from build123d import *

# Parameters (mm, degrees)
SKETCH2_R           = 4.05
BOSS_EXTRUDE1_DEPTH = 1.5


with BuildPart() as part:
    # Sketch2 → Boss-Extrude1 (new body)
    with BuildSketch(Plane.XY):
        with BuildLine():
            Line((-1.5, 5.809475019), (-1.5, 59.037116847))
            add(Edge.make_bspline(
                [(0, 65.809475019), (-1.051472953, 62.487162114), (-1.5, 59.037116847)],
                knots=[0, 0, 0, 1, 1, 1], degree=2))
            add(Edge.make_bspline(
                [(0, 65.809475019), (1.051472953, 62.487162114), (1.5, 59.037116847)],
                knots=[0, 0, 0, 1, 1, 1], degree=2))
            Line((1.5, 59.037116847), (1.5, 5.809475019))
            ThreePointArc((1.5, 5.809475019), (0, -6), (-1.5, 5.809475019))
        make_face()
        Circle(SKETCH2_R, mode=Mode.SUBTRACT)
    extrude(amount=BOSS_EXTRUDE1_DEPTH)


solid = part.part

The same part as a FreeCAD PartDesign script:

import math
import FreeCAD as App
import Part
import Sketcher
from FreeCAD import Vector
Q = App.Units.Quantity

doc = App.newDocument("Part")
params = doc.addObject("Spreadsheet::Sheet", "Params")
for row, (alias, value) in enumerate([
    ("sketch1_radius", "6 mm"),
    ("sketch1_diameter", "8.1 mm"),
    ("pad1_length", "1.5 mm"),
], start=1):
    params.set(f"A{row}", alias)
    params.set(f"B{row}", "=" + value)
    params.setAlias(f"B{row}", alias)

body = doc.addObject("PartDesign::Body", "Body")

# Sketch on XY plane
sketch1 = body.newObject("Sketcher::SketchObject", "Sketch")
sketch1.AttachmentSupport = (doc.getObject("XY_Plane"), [""])
sketch1.MapMode = "FlatFace"
sketch1.addGeometry(Part.LineSegment(Vector(-1.5, 59.037117, 0), Vector(-1.5, 5.809475, 0)), False)
sketch1.addGeometry(Part.ArcOfCircle(Part.Circle(Vector(0, 0, 0), Vector(0, 0, 1), 6), math.radians(104.477512), math.radians(435.522488)), False)
sketch1.addGeometry(Part.LineSegment(Vector(1.5, 5.809475, 0), Vector(1.5, 59.037117, 0)), False)
sketch1.addGeometry(Part.BSplineCurve([Vector(0, 65.809475, 0), Vector(1.051473, 62.487162, 0), Vector(1.5, 59.037117, 0)], [3, 3], [0, 1], False, 2, [1, 1, 1], False), False)
sketch1.addGeometry(Part.BSplineCurve([Vector(0, 65.809475, 0), Vector(-1.051473, 62.487162, 0), Vector(-1.5, 59.037117, 0)], [3, 3], [0, 1], False, 2, [1, 1, 1], False), False)
sketch1.addGeometry(Part.Circle(Vector(0, 0, 0), Vector(0, 0, 1), 4.05), False)
sketch1.addConstraint(Sketcher.Constraint("Block", 3))
sketch1.addConstraint(Sketcher.Constraint("Block", 4))
sketch1.addConstraint(Sketcher.Constraint("Coincident", 0, 2, 1, 1))
sketch1.addConstraint(Sketcher.Constraint("Coincident", 1, 2, 2, 1))
sketch1.addConstraint(Sketcher.Constraint("Coincident", 2, 2, 3, 2))
sketch1.addConstraint(Sketcher.Constraint("Coincident", 4, 2, 0, 1))
sketch1.addConstraint(Sketcher.Constraint("Vertical", 0))
sketch1.addConstraint(Sketcher.Constraint("Vertical", 2))
sketch1.addConstraint(Sketcher.Constraint("Coincident", 1, 3, -1, 1))
sketch1.addConstraint(Sketcher.Constraint("Coincident", 5, 3, -1, 1))
sketch1.addConstraint(Sketcher.Constraint("Radius", 1, Q("6 mm")))
sketch1.addConstraint(Sketcher.Constraint("Diameter", 5, Q("8.1 mm")))
sketch1.setExpression("Constraints[10]", "Params.sketch1_radius")
sketch1.setExpression("Constraints[11]", "Params.sketch1_diameter")
pad1 = body.newObject("PartDesign::Pad", "Pad")
pad1.Profile = sketch1
pad1.setExpression("Length", "Params.pad1_length")

doc.recompute()
